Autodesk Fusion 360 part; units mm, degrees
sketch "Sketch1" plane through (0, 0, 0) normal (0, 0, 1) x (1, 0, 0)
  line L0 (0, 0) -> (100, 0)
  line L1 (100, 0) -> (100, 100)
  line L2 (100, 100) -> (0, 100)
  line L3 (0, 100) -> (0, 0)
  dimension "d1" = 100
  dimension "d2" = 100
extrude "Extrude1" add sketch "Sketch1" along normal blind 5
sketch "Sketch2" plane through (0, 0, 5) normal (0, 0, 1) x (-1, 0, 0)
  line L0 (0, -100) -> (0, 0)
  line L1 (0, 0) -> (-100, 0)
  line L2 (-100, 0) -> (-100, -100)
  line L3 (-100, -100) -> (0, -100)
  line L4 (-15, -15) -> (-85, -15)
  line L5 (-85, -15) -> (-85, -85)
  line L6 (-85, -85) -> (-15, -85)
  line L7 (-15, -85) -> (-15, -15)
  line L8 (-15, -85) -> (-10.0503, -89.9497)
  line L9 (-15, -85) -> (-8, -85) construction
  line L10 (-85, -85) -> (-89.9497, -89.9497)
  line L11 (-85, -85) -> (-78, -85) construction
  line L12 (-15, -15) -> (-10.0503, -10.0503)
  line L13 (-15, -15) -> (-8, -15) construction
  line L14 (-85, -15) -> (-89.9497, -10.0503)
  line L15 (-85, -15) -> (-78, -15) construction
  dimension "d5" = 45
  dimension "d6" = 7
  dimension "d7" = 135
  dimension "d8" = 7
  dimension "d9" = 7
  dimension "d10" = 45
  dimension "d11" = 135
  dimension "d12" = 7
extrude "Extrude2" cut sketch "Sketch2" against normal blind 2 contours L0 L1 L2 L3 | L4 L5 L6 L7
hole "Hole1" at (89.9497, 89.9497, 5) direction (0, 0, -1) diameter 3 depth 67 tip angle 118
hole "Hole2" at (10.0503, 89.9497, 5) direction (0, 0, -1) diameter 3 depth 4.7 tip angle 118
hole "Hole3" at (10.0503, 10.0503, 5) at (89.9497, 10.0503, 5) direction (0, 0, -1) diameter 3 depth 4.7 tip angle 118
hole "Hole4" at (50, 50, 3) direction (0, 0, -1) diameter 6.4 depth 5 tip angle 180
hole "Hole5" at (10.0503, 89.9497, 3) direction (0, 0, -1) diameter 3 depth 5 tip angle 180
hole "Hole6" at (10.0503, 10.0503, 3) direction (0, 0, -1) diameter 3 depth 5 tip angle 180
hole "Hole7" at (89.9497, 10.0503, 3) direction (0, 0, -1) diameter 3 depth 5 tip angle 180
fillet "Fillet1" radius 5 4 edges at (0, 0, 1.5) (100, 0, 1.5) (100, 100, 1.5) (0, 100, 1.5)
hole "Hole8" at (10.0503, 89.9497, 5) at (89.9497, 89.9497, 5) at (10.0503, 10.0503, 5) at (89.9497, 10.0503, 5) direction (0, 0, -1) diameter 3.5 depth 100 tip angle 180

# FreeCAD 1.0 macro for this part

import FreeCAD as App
import Part
import Sketcher


def edges_at(feature, points):
    """Names of the edges that pass closest to the given points."""
    edges = feature.Shape.Edges
    near = lambda p: min(range(len(edges)), key=lambda i: edges[i].distToShape(Part.Vertex(*p))[0])
    return sorted({f"Edge{near(p) + 1}" for p in points})

doc = App.newDocument("Part")
params = doc.addObject("Spreadsheet::Sheet", "Params")
for row, (alias, value) in enumerate([
    ("sketch1_width", "100 mm"),
    ("pad1_length", "5 mm"),
    ("sketch2_width", "100 mm"),
    ("pocket1_length", "2 mm"),
    ("sketch3_diameter", "3 mm"),
    ("hole_diameter", "3 mm"),
    ("hole_depth", "67 mm"),
    ("sketch4_diameter", "3 mm"),
    ("hole2_diameter", "3 mm"),
    ("hole2_depth", "4.7 mm"),
    ("sketch5_diameter", "3 mm"),
    ("hole3_diameter", "3 mm"),
    ("hole3_depth", "4.7 mm"),
    ("sketch6_diameter", "6.4 mm"),
    ("hole4_diameter", "6.4 mm"),
    ("hole4_depth", "5 mm"),
    ("sketch7_diameter", "3 mm"),
    ("hole5_diameter", "3 mm"),
    ("hole5_depth", "5 mm"),
    ("sketch8_diameter", "3 mm"),
    ("hole6_diameter", "3 mm"),
    ("hole6_depth", "5 mm"),
    ("sketch9_diameter", "3 mm"),
    ("hole7_diameter", "3 mm"),
    ("hole7_depth", "5 mm"),
    ("fillet_radius", "5 mm"),
    ("sketch10_diameter", "3.5 mm"),
    ("hole8_diameter", "3.5 mm"),
    ("hole8_depth", "100 mm"),
], start=1):
    params.set(f"A{row}", alias)
    params.set(f"B{row}", "=" + value)
    params.setAlias(f"B{row}", alias)

body = doc.addObject("PartDesign::Body", "Body")

# Sketch on XY plane
sketch1 = body.newObject("Sketcher::SketchObject", "Sketch")
sketch1.AttachmentSupport = (doc.getObject("XY_Plane"), [""])
sketch1.MapMode = "FlatFace"
sketch1.addGeometry([
    Part.LineSegment(App.Vector(0, 100, 0), App.Vector(0, 0, 0)),
    Part.LineSegment(App.Vector(0, 0, 0), App.Vector(100, 0, 0)),
    Part.LineSegment(App.Vector(100, 0, 0), App.Vector(100, 100, 0)),
    Part.LineSegment(App.Vector(100, 100, 0), App.Vector(0, 100, 0)),
], False)
sketch1.addConstraint([
    Sketcher.Constraint("Coincident", 0, 2, 1, 1),
    Sketcher.Constraint("Coincident", 1, 2, 2, 1),
    Sketcher.Constraint("Coincident", 2, 2, 3, 1),
    Sketcher.Constraint("Coincident", 3, 2, 0, 1),
    Sketcher.Constraint("Vertical", 0),
    Sketcher.Constraint("Horizontal", 1),
    Sketcher.Constraint("Vertical", 2),
    Sketcher.Constraint("Horizontal", 3),
    Sketcher.Constraint("Coincident", 0, 2, -1, 1),
    Sketcher.Constraint("Equal", 3, 0),
    Sketcher.Constraint("DistanceX", 1, 1, 1, 2, 100.0),
])
sketch1.setExpression("Constraints[10]", "Params.sketch1_width")
pad1 = body.newObject("PartDesign::Pad", "Pad")
pad1.Profile = sketch1
pad1.setExpression("Length", "Params.pad1_length")

# Sketch on XY plane
sketch2 = body.newObject("Sketcher::SketchObject", "Sketch001")
sketch2.AttachmentSupport = (doc.getObject("XY_Plane"), [""])
sketch2.MapMode = "FlatFace"
sketch2.AttachmentOffset = App.Placement(App.Vector(0, 0, 5), App.Rotation())
sketch2.addGeometry([
    Part.LineSegment(App.Vector(100, 100, 0), App.Vector(0, 100, 0)),
    Part.LineSegment(App.Vector(0, 100, 0), App.Vector(0, 0, 0)),
    Part.LineSegment(App.Vector(0, 0, 0), App.Vector(100, 0, 0)),
    Part.LineSegment(App.Vector(100, 0, 0), App.Vector(100, 100, 0)),
], False)
sketch2.addConstraint([
    Sketcher.Constraint("Coincident", 0, 2, 1, 1),
    Sketcher.Constraint("Coincident", 1, 2, 2, 1),
    Sketcher.Constraint("Coincident", 2, 2, 3, 1),
    Sketcher.Constraint("Coincident", 3, 2, 0, 1),
    Sketcher.Constraint("Horizontal", 0),
    Sketcher.Constraint("Vertical", 1),
    Sketcher.Constraint("Horizontal", 2),
    Sketcher.Constraint("Vertical", 3),
    Sketcher.Constraint("Coincident", 1, 2, -1, 1),
    Sketcher.Constraint("Equal", 2, 1),
    Sketcher.Constraint("DistanceX", 0, 2, 0, 1, 100.0),
])
sketch2.setExpression("Constraints[10]", "Params.sketch2_width")
pocket1 = body.newObject("PartDesign::Pocket", "Pocket")
pocket1.Profile = sketch2
pocket1.setExpression("Length", "Params.pocket1_length")

# Sketch on XY plane
sketch3 = body.newObject("Sketcher::SketchObject", "Sketch002")
sketch3.AttachmentSupport = (doc.getObject("XY_Plane"), [""])
sketch3.MapMode = "FlatFace"
sketch3.AttachmentOffset = App.Placement(App.Vector(0, 0, 5), App.Rotation())
sketch3.addGeometry(Part.Circle(App.Vector(89.9, 89.9, 0), App.Vector(0, 0, 1), 1.5), False)
sketch3.addConstraint([
    Sketcher.Constraint("Diameter", 0, 3.0),
    Sketcher.Constraint("DistanceX", -1, 1, 0, 3, 89.9497),
    Sketcher.Constraint("DistanceY", -1, 1, 0, 3, 89.9497),
])
sketch3.setExpression("Constraints[0]", "Params.sketch3_diameter")
doc.recompute()
hole = body.newObject("PartDesign::Hole", "Hole")
hole.Profile = sketch3
hole.ThreadType = "None"
hole.setExpression("Diameter", "Params.hole_diameter")
hole.DepthType = "Dimension"
hole.setExpression("Depth", "Params.hole_depth")
hole.DrillPoint = "Angled"
hole.DrillPointAngle = 118

# Sketch on XY plane
sketch4 = body.newObject("Sketcher::SketchObject", "Sketch003")
sketch4.AttachmentSupport = (doc.getObject("XY_Plane"), [""])
sketch4.MapMode = "FlatFace"
sketch4.AttachmentOffset = App.Placement(App.Vector(0, 0, 5), App.Rotation())
sketch4.addGeometry(Part.Circle(App.Vector(10.1, 89.9, 0), App.Vector(0, 0, 1), 1.5), False)
sketch4.addConstraint([
    Sketcher.Constraint("Diameter", 0, 3.0),
    Sketcher.Constraint("DistanceX", -1, 1, 0, 3, 10.0503),
    Sketcher.Constraint("DistanceY", -1, 1, 0, 3, 89.9497),
])
sketch4.setExpression("Constraints[0]", "Params.sketch4_diameter")
doc.recompute()
hole2 = body.newObject("PartDesign::Hole", "Hole001")
hole2.Profile = sketch4
hole2.ThreadType = "None"
hole2.setExpression("Diameter", "Params.hole2_diameter")
hole2.DepthType = "Dimension"
hole2.setExpression("Depth", "Params.hole2_depth")
hole2.DrillPoint = "Angled"
hole2.DrillPointAngle = 118

# Sketch on XY plane
sketch5 = body.newObject("Sketcher::SketchObject", "Sketch004")
sketch5.AttachmentSupport = (doc.getObject("XY_Plane"), [""])
sketch5.MapMode = "FlatFace"
sketch5.AttachmentOffset = App.Placement(App.Vector(0, 0, 5), App.Rotation())
sketch5.addGeometry([
    Part.Circle(App.Vector(10.1, 10.1, 0), App.Vector(0, 0, 1), 1.5),
    Part.Circle(App.Vector(89.9, 10.1, 0), App.Vector(0, 0, 1), 1.5),
], False)
sketch5.addConstraint([
    Sketcher.Constraint("Equal", 0, 1),
    Sketcher.Constraint("Horizontal", 0, 3, 1, 3),
    Sketcher.Constraint("Diameter", 0, 3.0),
    Sketcher.Constraint("DistanceX", -1, 1, 0, 3, 10.0503),
    Sketcher.Constraint("DistanceY", -1, 1, 0, 3, 10.0503),
    Sketcher.Constraint("DistanceX", -1, 1, 1, 3, 89.9497),
])
sketch5.setExpression("Constraints[2]", "Params.sketch5_diameter")
doc.recompute()
hole3 = body.newObject("PartDesign::Hole", "Hole002")
hole3.Profile = sketch5
hole3.ThreadType = "None"
hole3.setExpression("Diameter", "Params.hole3_diameter")
hole3.DepthType = "Dimension"
hole3.setExpression("Depth", "Params.hole3_depth")
hole3.DrillPoint = "Angled"
hole3.DrillPointAngle = 118

# Sketch on XY plane
sketch6 = body.newObject("Sketcher::SketchObject", "Sketch005")
sketch6.AttachmentSupport = (doc.getObject("XY_Plane"), [""])
sketch6.MapMode = "FlatFace"
sketch6.AttachmentOffset = App.Placement(App.Vector(0, 0, 3), App.Rotation())
sketch6.addGeometry(Part.Circle(App.Vector(50, 50, 0), App.Vector(0, 0, 1), 3.2), False)
sketch6.addConstraint([
    Sketcher.Constraint("Diameter", 0, 6.4),
    Sketcher.Constraint("DistanceX", -1, 1, 0, 3, 50.0),
    Sketcher.Constraint("DistanceY", -1, 1, 0, 3, 50.0),
])
sketch6.setExpression("Constraints[0]", "Params.sketch6_diameter")
doc.recompute()
hole4 = body.newObject("PartDesign::Hole", "Hole003")
hole4.Profile = sketch6
hole4.ThreadType = "None"
hole4.setExpression("Diameter", "Params.hole4_diameter")
hole4.DepthType = "Dimension"
hole4.setExpression("Depth", "Params.hole4_depth")
hole4.DrillPoint = "Flat"

# Sketch on XY plane
sketch7 = body.newObject("Sketcher::SketchObject", "Sketch006")
sketch7.AttachmentSupport = (doc.getObject("XY_Plane"), [""])
sketch7.MapMode = "FlatFace"
sketch7.AttachmentOffset = App.Placement(App.Vector(0, 0, 3), App.Rotation())
sketch7.addGeometry(Part.Circle(App.Vector(10.1, 89.9, 0), App.Vector(0, 0, 1), 1.5), False)
sketch7.addConstraint([
    Sketcher.Constraint("Diameter", 0, 3.0),
    Sketcher.Constraint("DistanceX", -1, 1, 0, 3, 10.0503),
    Sketcher.Constraint("DistanceY", -1, 1, 0, 3, 89.9497),
])
sketch7.setExpression("Constraints[0]", "Params.sketch7_diameter")
doc.recompute()
hole5 = body.newObject("PartDesign::Hole", "Hole004")
hole5.Profile = sketch7
hole5.ThreadType = "None"
hole5.setExpression("Diameter", "Params.hole5_diameter")
hole5.DepthType = "Dimension"
hole5.setExpression("Depth", "Params.hole5_depth")
hole5.DrillPoint = "Flat"

# Sketch on XY plane
sketch8 = body.newObject("Sketcher::SketchObject", "Sketch007")
sketch8.AttachmentSupport = (doc.getObject("XY_Plane"), [""])
sketch8.MapMode = "FlatFace"
sketch8.AttachmentOffset = App.Placement(App.Vector(0, 0, 3), App.Rotation())
sketch8.addGeometry(Part.Circle(App.Vector(10.1, 10.1, 0), App.Vector(0, 0, 1), 1.5), False)
sketch8.addConstraint([
    Sketcher.Constraint("Diameter", 0, 3.0),
    Sketcher.Constraint("DistanceX", -1, 1, 0, 3, 10.0503),
    Sketcher.Constraint("DistanceY", -1, 1, 0, 3, 10.0503),
])
sketch8.setExpression("Constraints[0]", "Params.sketch8_diameter")
doc.recompute()
hole6 = body.newObject("PartDesign::Hole", "Hole005")
hole6.Profile = sketch8
hole6.ThreadType = "None"
hole6.setExpression("Diameter", "Params.hole6_diameter")
hole6.DepthType = "Dimension"
hole6.setExpression("Depth", "Params.hole6_depth")
hole6.DrillPoint = "Flat"

# Sketch on XY plane
sketch9 = body.newObject("Sketcher::SketchObject", "Sketch008")
sketch9.AttachmentSupport = (doc.getObject("XY_Plane"), [""])
sketch9.MapMode = "FlatFace"
sketch9.AttachmentOffset = App.Placement(App.Vector(0, 0, 3), App.Rotation())
sketch9.addGeometry(Part.Circle(App.Vector(89.9, 10.1, 0), App.Vector(0, 0, 1), 1.5), False)
sketch9.addConstraint([
    Sketcher.Constraint("Diameter", 0, 3.0),
    Sketcher.Constraint("DistanceX", -1, 1, 0, 3, 89.9497),
    Sketcher.Constraint("DistanceY", -1, 1, 0, 3, 10.0503),
])
sketch9.setExpression("Constraints[0]", "Params.sketch9_diameter")
doc.recompute()
hole7 = body.newObject("PartDesign::Hole", "Hole006")
hole7.Profile = sketch9
hole7.ThreadType = "None"
hole7.setExpression("Diameter", "Params.hole7_diameter")
hole7.DepthType = "Dimension"
hole7.setExpression("Depth", "Params.hole7_depth")
hole7.DrillPoint = "Flat"
doc.recompute()

fillet = body.newObject("PartDesign::Fillet", "Fillet")
fillet.Base = (hole7, edges_at(hole7, [
    (0, 0, 1.5),
    (100, 0, 1.5),
    (100, 100, 1.5),
    (0, 100, 1.5),
]))
fillet.setExpression("Radius", "Params.fillet_radius")

# Sketch on XY plane
sketch10 = body.newObject("Sketcher::SketchObject", "Sketch009")
sketch10.AttachmentSupport = (doc.getObject("XY_Plane"), [""])
sketch10.MapMode = "FlatFace"
sketch10.AttachmentOffset = App.Placement(App.Vector(0, 0, 5), App.Rotation())
sketch10.addGeometry([
    Part.Circle(App.Vector(10.1, 89.9, 0), App.Vector(0, 0, 1), 1.8),
    Part.Circle(App.Vector(89.9, 89.9, 0), App.Vector(0, 0, 1), 1.8),
    Part.Circle(App.Vector(10.1, 10.1, 0), App.Vector(0, 0, 1), 1.8),
    Part.Circle(App.Vector(89.9, 10.1, 0), App.Vector(0, 0, 1), 1.8),
], False)
sketch10.addConstraint([
    Sketcher.Constraint("Equal", 0, 1),
    Sketcher.Constraint("Equal", 1, 2),
    Sketcher.Constraint("Equal", 2, 3),
    Sketcher.Constraint("Horizontal", 0, 3, 1, 3),
    Sketcher.Constraint("Horizontal", 2, 3, 3, 3),
    Sketcher.Constraint("Vertical", 0, 3, 2, 3),
    Sketcher.Constraint("Vertical", 1, 3, 3, 3),
    Sketcher.Constraint("Diameter", 0, 3.5),
    Sketcher.Constraint("DistanceX", -1, 1, 0, 3, 10.0503),
    Sketcher.Constraint("DistanceY", -1, 1, 0, 3, 89.9497),
    Sketcher.Constraint("DistanceX", -1, 1, 1, 3, 89.9497),
    Sketcher.Constraint("DistanceY", -1, 1, 2, 3, 10.0503),
])
sketch10.setExpression("Constraints[7]", "Params.sketch10_diameter")
doc.recompute()
hole8 = body.newObject("PartDesign::Hole", "Hole007")
hole8.Profile = sketch10
hole8.ThreadType = "None"
hole8.setExpression("Diameter", "Params.hole8_diameter")
hole8.DepthType = "Dimension"
hole8.setExpression("Depth", "Params.hole8_depth")
hole8.DrillPoint = "Flat"

doc.recompute()
